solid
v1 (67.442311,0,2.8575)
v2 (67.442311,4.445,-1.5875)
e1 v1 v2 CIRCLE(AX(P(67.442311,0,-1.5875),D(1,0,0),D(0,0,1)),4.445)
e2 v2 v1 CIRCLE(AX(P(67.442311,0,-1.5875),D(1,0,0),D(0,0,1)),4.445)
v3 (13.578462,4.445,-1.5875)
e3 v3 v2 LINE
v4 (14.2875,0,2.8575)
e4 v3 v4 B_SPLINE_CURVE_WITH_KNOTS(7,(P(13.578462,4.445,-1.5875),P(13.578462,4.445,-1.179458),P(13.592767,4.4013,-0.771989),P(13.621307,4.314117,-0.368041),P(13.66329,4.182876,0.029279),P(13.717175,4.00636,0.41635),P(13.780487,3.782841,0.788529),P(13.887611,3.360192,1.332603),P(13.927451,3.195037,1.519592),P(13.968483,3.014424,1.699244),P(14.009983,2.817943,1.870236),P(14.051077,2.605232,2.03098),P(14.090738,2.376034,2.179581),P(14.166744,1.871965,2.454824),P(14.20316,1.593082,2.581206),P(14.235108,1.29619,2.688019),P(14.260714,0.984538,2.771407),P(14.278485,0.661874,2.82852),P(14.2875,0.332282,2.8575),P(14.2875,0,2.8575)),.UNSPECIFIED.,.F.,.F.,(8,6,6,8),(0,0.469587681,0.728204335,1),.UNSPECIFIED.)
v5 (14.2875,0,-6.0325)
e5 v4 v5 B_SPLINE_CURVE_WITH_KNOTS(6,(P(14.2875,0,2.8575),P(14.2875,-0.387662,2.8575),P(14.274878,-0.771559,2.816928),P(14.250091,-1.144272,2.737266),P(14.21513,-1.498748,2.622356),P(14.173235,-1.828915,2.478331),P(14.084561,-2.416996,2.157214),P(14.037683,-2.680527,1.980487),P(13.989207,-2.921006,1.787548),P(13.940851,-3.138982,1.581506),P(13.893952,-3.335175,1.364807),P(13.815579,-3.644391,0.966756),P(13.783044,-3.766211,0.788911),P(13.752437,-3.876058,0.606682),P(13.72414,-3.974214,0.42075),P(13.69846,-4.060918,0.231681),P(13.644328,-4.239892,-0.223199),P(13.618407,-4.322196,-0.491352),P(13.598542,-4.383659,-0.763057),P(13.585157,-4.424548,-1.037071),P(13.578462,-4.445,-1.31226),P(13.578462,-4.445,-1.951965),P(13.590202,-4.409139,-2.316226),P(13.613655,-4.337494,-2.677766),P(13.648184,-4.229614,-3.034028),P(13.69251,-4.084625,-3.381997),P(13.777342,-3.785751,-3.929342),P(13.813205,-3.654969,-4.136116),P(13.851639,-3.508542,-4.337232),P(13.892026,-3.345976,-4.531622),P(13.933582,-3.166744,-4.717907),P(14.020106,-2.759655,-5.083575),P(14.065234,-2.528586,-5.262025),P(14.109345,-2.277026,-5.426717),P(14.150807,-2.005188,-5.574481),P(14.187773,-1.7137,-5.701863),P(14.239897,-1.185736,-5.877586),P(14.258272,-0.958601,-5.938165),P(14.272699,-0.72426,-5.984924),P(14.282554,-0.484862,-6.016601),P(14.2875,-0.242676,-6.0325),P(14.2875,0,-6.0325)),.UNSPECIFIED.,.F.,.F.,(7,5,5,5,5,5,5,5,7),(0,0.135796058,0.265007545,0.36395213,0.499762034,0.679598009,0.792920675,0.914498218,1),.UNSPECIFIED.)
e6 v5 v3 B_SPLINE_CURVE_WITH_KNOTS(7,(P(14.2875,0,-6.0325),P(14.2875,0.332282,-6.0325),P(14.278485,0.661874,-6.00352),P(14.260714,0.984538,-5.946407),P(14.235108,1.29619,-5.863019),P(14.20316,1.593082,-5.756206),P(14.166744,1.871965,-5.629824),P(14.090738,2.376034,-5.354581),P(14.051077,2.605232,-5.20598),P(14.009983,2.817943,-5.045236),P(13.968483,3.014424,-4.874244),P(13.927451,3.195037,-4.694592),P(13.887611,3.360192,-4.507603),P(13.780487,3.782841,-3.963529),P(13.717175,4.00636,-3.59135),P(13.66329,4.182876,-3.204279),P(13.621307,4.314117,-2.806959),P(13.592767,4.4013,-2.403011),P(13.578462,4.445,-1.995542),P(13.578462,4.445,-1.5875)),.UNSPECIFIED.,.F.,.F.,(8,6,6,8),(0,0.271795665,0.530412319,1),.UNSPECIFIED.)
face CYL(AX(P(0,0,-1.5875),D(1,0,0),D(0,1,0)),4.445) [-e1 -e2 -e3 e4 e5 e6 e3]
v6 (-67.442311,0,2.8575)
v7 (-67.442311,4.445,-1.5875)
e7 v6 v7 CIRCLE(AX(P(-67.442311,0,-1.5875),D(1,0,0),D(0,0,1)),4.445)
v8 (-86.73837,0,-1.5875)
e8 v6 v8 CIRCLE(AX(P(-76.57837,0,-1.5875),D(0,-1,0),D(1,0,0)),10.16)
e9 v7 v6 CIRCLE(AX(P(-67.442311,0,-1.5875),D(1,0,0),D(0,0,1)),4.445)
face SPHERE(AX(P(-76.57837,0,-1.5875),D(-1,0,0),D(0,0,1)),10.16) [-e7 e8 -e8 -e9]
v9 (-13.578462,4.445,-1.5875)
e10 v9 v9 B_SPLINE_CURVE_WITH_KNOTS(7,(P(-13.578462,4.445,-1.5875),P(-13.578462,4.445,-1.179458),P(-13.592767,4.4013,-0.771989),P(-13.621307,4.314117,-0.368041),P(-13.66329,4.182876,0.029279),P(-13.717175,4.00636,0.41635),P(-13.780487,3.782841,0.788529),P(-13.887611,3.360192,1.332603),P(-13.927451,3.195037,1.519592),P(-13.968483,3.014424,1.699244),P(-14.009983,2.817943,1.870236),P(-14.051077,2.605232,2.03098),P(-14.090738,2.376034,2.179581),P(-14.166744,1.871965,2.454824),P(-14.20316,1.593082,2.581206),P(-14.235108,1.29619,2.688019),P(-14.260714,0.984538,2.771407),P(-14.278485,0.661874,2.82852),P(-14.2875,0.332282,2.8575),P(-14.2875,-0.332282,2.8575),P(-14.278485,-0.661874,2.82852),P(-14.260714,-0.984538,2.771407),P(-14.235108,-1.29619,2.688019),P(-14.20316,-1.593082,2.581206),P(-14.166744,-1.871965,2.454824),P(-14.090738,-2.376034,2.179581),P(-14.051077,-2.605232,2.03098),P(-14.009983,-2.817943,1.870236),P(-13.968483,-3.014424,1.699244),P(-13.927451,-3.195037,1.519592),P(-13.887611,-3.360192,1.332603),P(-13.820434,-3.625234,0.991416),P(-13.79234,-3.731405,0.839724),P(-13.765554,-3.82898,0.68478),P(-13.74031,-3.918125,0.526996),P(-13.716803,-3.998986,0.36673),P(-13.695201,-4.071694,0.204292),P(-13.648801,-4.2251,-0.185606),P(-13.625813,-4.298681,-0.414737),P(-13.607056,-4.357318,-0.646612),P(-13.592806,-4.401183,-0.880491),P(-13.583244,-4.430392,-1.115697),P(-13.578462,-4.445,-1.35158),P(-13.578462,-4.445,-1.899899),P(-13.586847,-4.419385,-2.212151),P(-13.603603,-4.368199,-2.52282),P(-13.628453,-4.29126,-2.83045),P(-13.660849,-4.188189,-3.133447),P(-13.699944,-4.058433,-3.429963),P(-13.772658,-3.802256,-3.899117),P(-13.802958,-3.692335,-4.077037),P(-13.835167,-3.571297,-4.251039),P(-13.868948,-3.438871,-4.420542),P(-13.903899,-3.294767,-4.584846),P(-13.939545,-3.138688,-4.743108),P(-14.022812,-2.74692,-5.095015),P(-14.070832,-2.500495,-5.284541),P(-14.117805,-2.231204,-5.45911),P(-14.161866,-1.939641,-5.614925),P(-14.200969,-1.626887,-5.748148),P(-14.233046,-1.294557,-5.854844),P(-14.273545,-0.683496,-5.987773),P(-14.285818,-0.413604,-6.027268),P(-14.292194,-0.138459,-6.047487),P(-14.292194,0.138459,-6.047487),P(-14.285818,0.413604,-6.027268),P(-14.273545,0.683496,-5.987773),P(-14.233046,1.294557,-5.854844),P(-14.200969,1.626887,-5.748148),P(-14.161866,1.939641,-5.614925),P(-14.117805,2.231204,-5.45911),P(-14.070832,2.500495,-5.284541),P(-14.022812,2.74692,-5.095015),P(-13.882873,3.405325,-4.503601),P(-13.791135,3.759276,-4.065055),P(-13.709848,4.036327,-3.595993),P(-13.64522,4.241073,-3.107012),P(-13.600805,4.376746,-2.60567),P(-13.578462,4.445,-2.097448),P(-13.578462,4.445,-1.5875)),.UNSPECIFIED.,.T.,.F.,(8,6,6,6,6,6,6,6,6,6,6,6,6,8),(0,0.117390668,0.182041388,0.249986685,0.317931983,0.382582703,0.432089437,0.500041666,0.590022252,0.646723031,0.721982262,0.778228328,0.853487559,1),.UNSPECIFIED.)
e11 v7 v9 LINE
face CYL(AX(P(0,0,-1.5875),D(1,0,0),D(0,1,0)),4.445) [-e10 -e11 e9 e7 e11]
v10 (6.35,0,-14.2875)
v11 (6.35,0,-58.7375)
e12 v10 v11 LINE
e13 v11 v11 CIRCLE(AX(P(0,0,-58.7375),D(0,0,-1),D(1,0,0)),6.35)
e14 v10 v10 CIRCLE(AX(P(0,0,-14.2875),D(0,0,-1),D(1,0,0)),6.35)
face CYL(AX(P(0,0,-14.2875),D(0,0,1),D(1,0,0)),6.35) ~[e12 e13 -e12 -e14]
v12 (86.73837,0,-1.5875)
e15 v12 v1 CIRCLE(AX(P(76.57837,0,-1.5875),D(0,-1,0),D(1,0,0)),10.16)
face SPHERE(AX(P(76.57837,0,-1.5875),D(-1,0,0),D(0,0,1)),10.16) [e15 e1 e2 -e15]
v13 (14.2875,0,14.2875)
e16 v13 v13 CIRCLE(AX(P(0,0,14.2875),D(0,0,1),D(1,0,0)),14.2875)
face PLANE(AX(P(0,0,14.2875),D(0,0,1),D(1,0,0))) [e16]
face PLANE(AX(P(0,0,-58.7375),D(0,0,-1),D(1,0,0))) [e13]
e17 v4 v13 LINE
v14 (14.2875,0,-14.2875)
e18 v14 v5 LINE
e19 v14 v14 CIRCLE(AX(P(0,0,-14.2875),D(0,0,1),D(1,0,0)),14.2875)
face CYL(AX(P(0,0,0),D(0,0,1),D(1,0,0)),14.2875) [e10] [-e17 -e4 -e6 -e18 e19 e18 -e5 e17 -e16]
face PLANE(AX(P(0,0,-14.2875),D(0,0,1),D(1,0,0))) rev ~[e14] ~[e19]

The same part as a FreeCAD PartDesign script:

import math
import FreeCAD as App
import Part
import Sketcher
from FreeCAD import Vector
Q = App.Units.Quantity

doc = App.newDocument("Part")
body = doc.addObject("PartDesign::Body", "Body")

# Sketch on XY plane
sketch1 = doc.addObject("Sketcher::SketchObject", "Sketch")
body.addObject(sketch1)
sketch1.AttachmentSupport = (doc.XY_Plane, [""])
sketch1.MapMode = "FlatFace"
sketch1.addGeometry(Part.Circle(Vector(0, 0, 0), Vector(0, 0, 1), 14), False)
sketch1.addConstraint([
    Sketcher.Constraint("Coincident", 0, 3, -1, 1),
    Sketcher.Constraint("Diameter", 0, Q("1.125 in")),
])
pad1 = doc.addObject("PartDesign::Pad", "Pad")
body.addObject(pad1)
pad1.Profile = sketch1
pad1.Length = Q("1.125 in")
pad1.Midplane = True

# Sketch on XY plane
sketch2 = doc.addObject("Sketcher::SketchObject", "Sketch001")
body.addObject(sketch2)
sketch2.AttachmentSupport = (doc.XY_Plane, [""])
sketch2.MapMode = "FlatFace"
sketch2.AttachmentOffset = App.Placement(Vector(0, 0, -0.5625 * 25.4), App.Rotation())
sketch2.addGeometry(Part.Circle(Vector(0, 0, 0), Vector(0, 0, 1), 6), False)
sketch2.addConstraint([
    Sketcher.Constraint("Coincident", 0, 3, -1, 1),
    Sketcher.Constraint("Diameter", 0, Q("0.5 in")),
])
pad2 = doc.addObject("PartDesign::Pad", "Pad001")
body.addObject(pad2)
pad2.Profile = sketch2
pad2.Length = Q("1.75 in")
pad2.Reversed = True

# Sketch on YZ plane
sketch3 = doc.addObject("Sketcher::SketchObject", "Sketch002")
body.addObject(sketch3)
sketch3.AttachmentSupport = (doc.YZ_Plane, [""])
sketch3.MapMode = "FlatFace"
sketch3.addGeometry(Part.Circle(Vector(0, -1.6, 0), Vector(0, 0, 1), 4.4), False)
sketch3.addConstraint([
    Sketcher.Constraint("PointOnObject", 0, 3, -2),
    Sketcher.Constraint("Diameter", 0, Q("0.35 in")),
    Sketcher.Constraint("DistanceY", 0, 3, -1, 1, Q("0.0625 in")),
])
pad3 = doc.addObject("PartDesign::Pad", "Pad002")
body.addObject(pad3)
pad3.Profile = sketch3
pad3.Length = Q("6 in")
pad3.Midplane = True

# Sketch on XZ plane
sketch4 = doc.addObject("Sketcher::SketchObject", "Sketch003")
body.addObject(sketch4)
sketch4.AttachmentSupport = (doc.XZ_Plane, [""])
sketch4.MapMode = "FlatFace"
sketch4.addGeometry([
    Part.LineSegment(Vector(-87, -2, 0), Vector(-66, -2, 0)),
    Part.ArcOfCircle(Part.Circle(Vector(-77, -2, 0), Vector(0, 0, 1), 10), math.radians(0), math.radians(180)),
    Part.ArcOfCircle(Part.Circle(Vector(77, -2, 0), Vector(0, 0, 1), 10), math.radians(0), math.radians(180)),
    Part.LineSegment(Vector(66, -2, 0), Vector(87, -2, 0)),
], False)
sketch4.addGeometry(Part.LineSegment(Vector(87, -2, 0), Vector(-87, -2, 0)), True)  # axis
sketch4.addConstraint([
    Sketcher.Constraint("Coincident", 0, 1, 1, 2),
    Sketcher.Constraint("Coincident", 1, 1, 0, 2),
    Sketcher.Constraint("Coincident", 2, 1, 3, 2),
    Sketcher.Constraint("Coincident", 3, 1, 2, 2),
    Sketcher.Constraint("Horizontal", 0),
    Sketcher.Constraint("Horizontal", 3),
    Sketcher.Constraint("Horizontal", 4),
    Sketcher.Constraint("Coincident", 4, 1, 2, 1),
    Sketcher.Constraint("Coincident", 4, 2, 0, 1),
    Sketcher.Constraint("Equal", 1, 2),
    Sketcher.Constraint("Symmetric", 1, 3, 2, 3, -2),
    Sketcher.Constraint("Horizontal", 2, 3, 0, 1),
    Sketcher.Constraint("Radius", 1, Q("0.4 in")),
    Sketcher.Constraint("DistanceY", 1, 3, -1, 1, Q("0.0625 in")),
    Sketcher.Constraint("DistanceX", 4, 2, 4, 1, 173.47674),
])
revolution = doc.addObject("PartDesign::Revolution", "Revolution")
body.addObject(revolution)
revolution.Profile = sketch4
revolution.ReferenceAxis = (sketch4, ["Axis0"])
revolution.Angle = 360

doc.recompute()
